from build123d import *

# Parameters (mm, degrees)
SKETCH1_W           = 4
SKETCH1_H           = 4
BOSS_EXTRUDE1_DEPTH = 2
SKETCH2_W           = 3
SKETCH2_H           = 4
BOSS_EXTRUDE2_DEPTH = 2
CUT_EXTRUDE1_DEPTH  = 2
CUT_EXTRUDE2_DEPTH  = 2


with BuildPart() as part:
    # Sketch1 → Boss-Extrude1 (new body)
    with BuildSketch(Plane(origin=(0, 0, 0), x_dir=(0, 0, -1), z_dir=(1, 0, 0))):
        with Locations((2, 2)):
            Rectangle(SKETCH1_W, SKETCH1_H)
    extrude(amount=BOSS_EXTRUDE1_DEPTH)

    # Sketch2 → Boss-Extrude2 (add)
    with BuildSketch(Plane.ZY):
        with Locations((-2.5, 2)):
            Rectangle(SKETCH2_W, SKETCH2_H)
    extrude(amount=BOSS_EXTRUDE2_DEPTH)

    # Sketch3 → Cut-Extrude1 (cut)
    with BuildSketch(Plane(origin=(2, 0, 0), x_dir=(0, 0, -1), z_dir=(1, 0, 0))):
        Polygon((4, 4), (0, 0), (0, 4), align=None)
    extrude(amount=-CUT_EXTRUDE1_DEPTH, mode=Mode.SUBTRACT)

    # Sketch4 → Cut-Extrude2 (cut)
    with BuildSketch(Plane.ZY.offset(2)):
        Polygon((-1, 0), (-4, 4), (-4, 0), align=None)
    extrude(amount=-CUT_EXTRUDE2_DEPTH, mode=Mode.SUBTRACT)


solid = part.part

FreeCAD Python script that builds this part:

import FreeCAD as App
import Part
import Sketcher
from FreeCAD import Vector
Q = App.Units.Quantity


def add_polygon(sketch, points):
    """Adds a closed chain of lines whose ends are joined by coincident constraints."""
    first, n = sketch.GeometryCount, len(points)
    for a, b in zip(points, points[1:] + points[:1]):
        sketch.addGeometry(Part.LineSegment(App.Vector(*a, 0), App.Vector(*b, 0)), False)
    for i in range(n):
        sketch.addConstraint(Sketcher.Constraint("Coincident", first + i, 2, first + (i + 1) % n, 1))

doc = App.newDocument("Part")
params = doc.addObject("Spreadsheet::Sheet", "Params")
for row, (alias, value) in enumerate([
    ("sketch1_width", "4 mm"),
    ("pad1_length", "2 mm"),
    ("sketch2_width", "4 mm"),
    ("sketch2_height", "3 mm"),
    ("pad2_length", "2 mm"),
    ("sketch3_width", "4 mm"),
    ("pocket1_length", "2 mm"),
    ("sketch4_width", "4 mm"),
    ("sketch4_height", "3 mm"),
    ("pocket2_length", "2 mm"),
], start=1):
    params.set(f"A{row}", alias)
    params.set(f"B{row}", "=" + value)
    params.setAlias(f"B{row}", alias)

body = doc.addObject("PartDesign::Body", "Body")

# Sketch on YZ plane
sketch1 = doc.addObject("Sketcher::SketchObject", "Sketch")
body.addObject(sketch1)
sketch1.AttachmentSupport = (doc.YZ_Plane, [""])
sketch1.MapMode = "FlatFace"
add_polygon(sketch1, [(4, 0), (0, 0), (0, -4), (4, -4)])  # lines 0-3
sketch1.addConstraint(Sketcher.Constraint("Horizontal", 0))
sketch1.addConstraint(Sketcher.Constraint("Vertical", 1))
sketch1.addConstraint(Sketcher.Constraint("Horizontal", 2))
sketch1.addConstraint(Sketcher.Constraint("Vertical", 3))
sketch1.addConstraint(Sketcher.Constraint("Coincident", 0, 2, -1, 1))
sketch1.addConstraint(Sketcher.Constraint("Equal", 2, 1))
sketch1.addConstraint(Sketcher.Constraint("DistanceX", 0, 2, 0, 1, Q("4 mm")))
sketch1.setExpression("Constraints[10]", "Params.sketch1_width")
pad1 = doc.addObject("PartDesign::Pad", "Pad")
body.addObject(pad1)
pad1.Profile = sketch1
pad1.setExpression("Length", "Params.pad1_length")

# Sketch on YZ plane
sketch2 = doc.addObject("Sketcher::SketchObject", "Sketch001")
body.addObject(sketch2)
sketch2.AttachmentSupport = (doc.YZ_Plane, [""])
sketch2.MapMode = "FlatFace"
add_polygon(sketch2, [(4, -4), (0, -4), (0, -1), (4, -1)])  # lines 0-3
sketch2.addConstraint(Sketcher.Constraint("Horizontal", 0))
sketch2.addConstraint(Sketcher.Constraint("Vertical", 1))
sketch2.addConstraint(Sketcher.Constraint("Horizontal", 2))
sketch2.addConstraint(Sketcher.Constraint("Vertical", 3))
sketch2.addConstraint(Sketcher.Constraint("PointOnObject", 0, 2, -2))
sketch2.addConstraint(Sketcher.Constraint("DistanceX", 0, 2, 0, 1, Q("4 mm")))
sketch2.addConstraint(Sketcher.Constraint("DistanceY", 1, 1, 1, 2, Q("3 mm")))
sketch2.addConstraint(Sketcher.Constraint("DistanceY", 0, 2, -1, 1, Q("4 mm")))
sketch2.setExpression("Constraints[9]", "Params.sketch2_width")
sketch2.setExpression("Constraints[10]", "Params.sketch2_height")
pad2 = doc.addObject("PartDesign::Pad", "Pad001")
body.addObject(pad2)
pad2.Profile = sketch2
pad2.setExpression("Length", "Params.pad2_length")
pad2.Reversed = True

# Sketch on YZ plane
sketch3 = doc.addObject("Sketcher::SketchObject", "Sketch002")
body.addObject(sketch3)
sketch3.AttachmentSupport = (doc.YZ_Plane, [""])
sketch3.MapMode = "FlatFace"
sketch3.AttachmentOffset = App.Placement(Vector(0, 0, 2), App.Rotation())
add_polygon(sketch3, [(0, 0), (4, -4), (4, 0)])  # lines 0-2
sketch3.addConstraint(Sketcher.Constraint("Vertical", 1))
sketch3.addConstraint(Sketcher.Constraint("Horizontal", 2))
sketch3.addConstraint(Sketcher.Constraint("Coincident", 2, 2, -1, 1))
sketch3.addConstraint(Sketcher.Constraint("Equal", 2, 1))
sketch3.addConstraint(Sketcher.Constraint("DistanceX", 2, 2, 2, 1, Q("4 mm")))
sketch3.setExpression("Constraints[7]", "Params.sketch3_width")
pocket1 = doc.addObject("PartDesign::Pocket", "Pocket")
body.addObject(pocket1)
pocket1.Profile = sketch3
pocket1.setExpression("Length", "Params.pocket1_length")

# Sketch on YZ plane
sketch4 = doc.addObject("Sketcher::SketchObject", "Sketch003")
body.addObject(sketch4)
sketch4.AttachmentSupport = (doc.YZ_Plane, [""])
sketch4.MapMode = "FlatFace"
sketch4.AttachmentOffset = App.Placement(Vector(0, 0, -2), App.Rotation())
add_polygon(sketch4, [(0, -1), (4, -4), (0, -4)])  # lines 0-2
sketch4.addConstraint(Sketcher.Constraint("Horizontal", 1))
sketch4.addConstraint(Sketcher.Constraint("Vertical", 2))
sketch4.addConstraint(Sketcher.Constraint("PointOnObject", 1, 2, -2))
sketch4.addConstraint(Sketcher.Constraint("DistanceX", 1, 2, 1, 1, Q("4 mm")))
sketch4.addConstraint(Sketcher.Constraint("DistanceY", 2, 1, 2, 2, Q("3 mm")))
sketch4.addConstraint(Sketcher.Constraint("DistanceY", 0, 2, -1, 1, Q("4 mm")))
sketch4.setExpression("Constraints[6]", "Params.sketch4_width")
sketch4.setExpression("Constraints[7]", "Params.sketch4_height")
pocket2 = doc.addObject("PartDesign::Pocket", "Pocket001")
body.addObject(pocket2)
pocket2.Profile = sketch4
pocket2.setExpression("Length", "Params.pocket2_length")
pocket2.Reversed = True

doc.recompute()
